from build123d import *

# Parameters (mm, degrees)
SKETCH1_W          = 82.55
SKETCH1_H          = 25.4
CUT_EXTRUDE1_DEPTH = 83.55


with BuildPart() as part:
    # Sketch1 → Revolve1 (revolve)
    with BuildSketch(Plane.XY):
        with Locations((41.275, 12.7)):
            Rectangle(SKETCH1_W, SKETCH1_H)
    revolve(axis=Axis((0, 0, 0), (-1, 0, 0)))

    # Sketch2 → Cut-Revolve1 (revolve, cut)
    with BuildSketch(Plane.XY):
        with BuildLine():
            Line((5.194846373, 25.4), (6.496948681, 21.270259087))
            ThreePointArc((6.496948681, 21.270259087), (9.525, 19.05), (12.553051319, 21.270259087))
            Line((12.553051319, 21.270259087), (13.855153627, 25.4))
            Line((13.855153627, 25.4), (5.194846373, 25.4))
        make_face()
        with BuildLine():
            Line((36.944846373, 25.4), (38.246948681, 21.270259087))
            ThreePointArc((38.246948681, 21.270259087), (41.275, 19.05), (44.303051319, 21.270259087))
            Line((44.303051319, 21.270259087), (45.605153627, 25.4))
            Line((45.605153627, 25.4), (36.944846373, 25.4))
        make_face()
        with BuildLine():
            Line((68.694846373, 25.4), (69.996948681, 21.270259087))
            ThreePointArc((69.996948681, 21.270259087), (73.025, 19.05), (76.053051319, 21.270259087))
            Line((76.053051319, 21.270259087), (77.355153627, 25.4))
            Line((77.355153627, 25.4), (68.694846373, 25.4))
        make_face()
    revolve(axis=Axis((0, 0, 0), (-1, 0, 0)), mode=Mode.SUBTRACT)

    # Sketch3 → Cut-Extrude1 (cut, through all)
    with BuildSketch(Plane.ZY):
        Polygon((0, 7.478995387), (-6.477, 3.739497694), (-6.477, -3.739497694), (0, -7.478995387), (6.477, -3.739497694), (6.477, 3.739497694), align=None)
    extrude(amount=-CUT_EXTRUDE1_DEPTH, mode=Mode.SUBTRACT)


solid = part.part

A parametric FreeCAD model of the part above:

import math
import FreeCAD as App
import Part
import Sketcher

V = App.Vector
Q = App.Units.Quantity

doc = App.newDocument("Part")
body = doc.addObject("PartDesign::Body", "Body")

# Sketch on XY plane
sketch1 = body.newObject("Sketcher::SketchObject", "Sketch")
sketch1.AttachmentSupport = (doc.getObject("XY_Plane"), [""])
sketch1.MapMode = "FlatFace"
sketch1.addGeometry(Part.LineSegment(V(0, 25, 0), V(0, 0, 0)), False)
sketch1.addGeometry(Part.LineSegment(V(0, 0, 0), V(83, 0, 0)), False)
sketch1.addGeometry(Part.LineSegment(V(83, 0, 0), V(83, 25, 0)), False)
sketch1.addGeometry(Part.LineSegment(V(83, 25, 0), V(0, 25, 0)), False)
sketch1.addConstraint(Sketcher.Constraint("Coincident", 0, 2, 1, 1))
sketch1.addConstraint(Sketcher.Constraint("Coincident", 1, 2, 2, 1))
sketch1.addConstraint(Sketcher.Constraint("Coincident", 2, 2, 3, 1))
sketch1.addConstraint(Sketcher.Constraint("Coincident", 3, 2, 0, 1))
sketch1.addConstraint(Sketcher.Constraint("Vertical", 0))
sketch1.addConstraint(Sketcher.Constraint("Horizontal", 1))
sketch1.addConstraint(Sketcher.Constraint("Vertical", 2))
sketch1.addConstraint(Sketcher.Constraint("Horizontal", 3))
sketch1.addConstraint(Sketcher.Constraint("Coincident", 0, 2, -1, 1))
sketch1.addConstraint(Sketcher.Constraint("DistanceY", 0, 2, 0, 1, Q("1 in")))
sketch1.addConstraint(Sketcher.Constraint("DistanceX", 1, 1, 1, 2, Q("3.25 in")))
revolution = body.newObject("PartDesign::Revolution", "Revolution")
revolution.Profile = sketch1
revolution.ReferenceAxis = (sketch1, ["H_Axis"])
revolution.Angle = 360

# Sketch on XY plane
sketch2 = body.newObject("Sketcher::SketchObject", "Sketch001")
sketch2.AttachmentSupport = (doc.getObject("XY_Plane"), [""])
sketch2.MapMode = "FlatFace"
sketch2.addGeometry(Part.LineSegment(V(5.2, 25.4, 0), V(6.5, 21.3, 0)), False)
sketch2.addGeometry(Part.ArcOfCircle(Part.Circle(V(9.5, 22.2, 0), V(0, 0, 1), 3.2), math.radians(-163), math.radians(-17)), False)
sketch2.addGeometry(Part.LineSegment(V(12.6, 21.3, 0), V(13.9, 25.4, 0)), False)
sketch2.addGeometry(Part.LineSegment(V(13.9, 25.4, 0), V(5.2, 25.4, 0)), False)
sketch2.addGeometry(Part.LineSegment(V(36.9, 25.4, 0), V(38.2, 21.3, 0)), False)
sketch2.addGeometry(Part.ArcOfCircle(Part.Circle(V(41.3, 22.2, 0), V(0, 0, 1), 3.2), math.radians(-163), math.radians(-17)), False)
sketch2.addGeometry(Part.LineSegment(V(44.3, 21.3, 0), V(45.6, 25.4, 0)), False)
sketch2.addGeometry(Part.LineSegment(V(45.6, 25.4, 0), V(36.9, 25.4, 0)), False)
sketch2.addGeometry(Part.LineSegment(V(68.7, 25.4, 0), V(70, 21.3, 0)), False)
sketch2.addGeometry(Part.ArcOfCircle(Part.Circle(V(73, 22.2, 0), V(0, 0, 1), 3.2), math.radians(-163), math.radians(-17)), False)
sketch2.addGeometry(Part.LineSegment(V(76.1, 21.3, 0), V(77.4, 25.4, 0)), False)
sketch2.addGeometry(Part.LineSegment(V(77.4, 25.4, 0), V(68.7, 25.4, 0)), False)
sketch2.addConstraint(Sketcher.Constraint("Tangent", 0, 2, 1, 1))
sketch2.addConstraint(Sketcher.Constraint("Tangent", 1, 2, 2, 1))
sketch2.addConstraint(Sketcher.Constraint("Coincident", 2, 2, 3, 1))
sketch2.addConstraint(Sketcher.Constraint("Coincident", 3, 2, 0, 1))
sketch2.addConstraint(Sketcher.Constraint("Tangent", 4, 2, 5, 1))
sketch2.addConstraint(Sketcher.Constraint("Tangent", 5, 2, 6, 1))
sketch2.addConstraint(Sketcher.Constraint("Coincident", 6, 2, 7, 1))
sketch2.addConstraint(Sketcher.Constraint("Coincident", 7, 2, 4, 1))
sketch2.addConstraint(Sketcher.Constraint("Tangent", 8, 2, 9, 1))
sketch2.addConstraint(Sketcher.Constraint("Tangent", 9, 2, 10, 1))
sketch2.addConstraint(Sketcher.Constraint("Coincident", 10, 2, 11, 1))
sketch2.addConstraint(Sketcher.Constraint("Coincident", 11, 2, 8, 1))
sketch2.addConstraint(Sketcher.Constraint("Horizontal", 3))
sketch2.addConstraint(Sketcher.Constraint("Horizontal", 7))
sketch2.addConstraint(Sketcher.Constraint("Horizontal", 11))
sketch2.addConstraint(Sketcher.Constraint("Equal", 1, 5))
sketch2.addConstraint(Sketcher.Constraint("Equal", 5, 9))
sketch2.addConstraint(Sketcher.Constraint("Parallel", 0, 4))
sketch2.addConstraint(Sketcher.Constraint("Parallel", 2, 6))
sketch2.addConstraint(Sketcher.Constraint("Parallel", 4, 8))
sketch2.addConstraint(Sketcher.Constraint("Parallel", 6, 10))
sketch2.addConstraint(Sketcher.Constraint("Horizontal", 1, 3, 5, 3))
sketch2.addConstraint(Sketcher.Constraint("Horizontal", 5, 3, 9, 3))
sketch2.addConstraint(Sketcher.Constraint("Horizontal", 0, 2, 1, 2))
sketch2.addConstraint(Sketcher.Constraint("Horizontal", 3, 2, 6, 2))
sketch2.addConstraint(Sketcher.Constraint("Horizontal", 7, 2, 10, 2))
sketch2.addConstraint(Sketcher.Constraint("DistanceY", -1, 1, 2, 2, Q("1 in")))
sketch2.addConstraint(Sketcher.Constraint("Radius", 1, Q("0.125 in")))
sketch2.addConstraint(Sketcher.Constraint("Angle", 0, Q("-72.5 deg")))
sketch2.addConstraint(Sketcher.Constraint("DistanceX", 1, 3, 9, 3, Q("2.5 in")))
sketch2.addConstraint(Sketcher.Constraint("DistanceX", 1, 3, 5, 3, Q("1.25 in")))
sketch2.addConstraint(Sketcher.Constraint("DistanceX", -1, 1, 1, 3, Q("0.375 in")))
sketch2.addConstraint(Sketcher.Constraint("DistanceY", -1, 1, 1, 3, Q("0.875 in")))
groove = body.newObject("PartDesign::Groove", "Groove")
groove.Profile = sketch2
groove.ReferenceAxis = (sketch2, ["H_Axis"])
groove.Angle = 360

# Sketch on YZ plane
sketch3 = body.newObject("Sketcher::SketchObject", "Sketch002")
sketch3.AttachmentSupport = (doc.getObject("YZ_Plane"), [""])
sketch3.MapMode = "FlatFace"
sketch3.addGeometry(Part.LineSegment(V(7, 0, 0), V(4, -6, 0)), False)
sketch3.addGeometry(Part.LineSegment(V(4, -6, 0), V(-4, -6, 0)), False)
sketch3.addGeometry(Part.LineSegment(V(-4, -6, 0), V(-7, 0, 0)), False)
sketch3.addGeometry(Part.LineSegment(V(-7, 0, 0), V(-4, 6, 0)), False)
sketch3.addGeometry(Part.LineSegment(V(-4, 6, 0), V(4, 6, 0)), False)
sketch3.addGeometry(Part.LineSegment(V(4, 6, 0), V(7, 0, 0)), False)
sketch3.addConstraint(Sketcher.Constraint("Coincident", 0, 2, 1, 1))
sketch3.addConstraint(Sketcher.Constraint("Coincident", 1, 2, 2, 1))
sketch3.addConstraint(Sketcher.Constraint("Coincident", 2, 2, 3, 1))
sketch3.addConstraint(Sketcher.Constraint("Coincident", 3, 2, 4, 1))
sketch3.addConstraint(Sketcher.Constraint("Coincident", 4, 2, 5, 1))
sketch3.addConstraint(Sketcher.Constraint("Coincident", 5, 2, 0, 1))
sketch3.addConstraint(Sketcher.Constraint("Horizontal", 1))
sketch3.addConstraint(Sketcher.Constraint("Horizontal", 4))
sketch3.addConstraint(Sketcher.Constraint("Symmetric", 0, 2, 3, 2, -1, 1))
sketch3.addConstraint(Sketcher.Constraint("Symmetric", 2, 2, 5, 2, -1, 1))
sketch3.addConstraint(Sketcher.Constraint("PointOnObject", 2, 2, -1))
sketch3.addConstraint(Sketcher.Constraint("Parallel", 2, 5))
sketch3.addConstraint(Sketcher.Constraint("Vertical", 1, 2, 3, 2))
sketch3.addConstraint(Sketcher.Constraint("Angle", 0, Q("-120 deg")))
sketch3.addConstraint(Sketcher.Constraint("DistanceY", 1, 2, 3, 2, Q("0.51 in")))
sketch3.addConstraint(Sketcher.Constraint("DistanceX", 1, 2, 1, 1, Q("7.478995 mm")))
pocket1 = body.newObject("PartDesign::Pocket", "Pocket")
pocket1.Profile = sketch3
pocket1.Type = "ThroughAll"
pocket1.Reversed = True

doc.recompute()
